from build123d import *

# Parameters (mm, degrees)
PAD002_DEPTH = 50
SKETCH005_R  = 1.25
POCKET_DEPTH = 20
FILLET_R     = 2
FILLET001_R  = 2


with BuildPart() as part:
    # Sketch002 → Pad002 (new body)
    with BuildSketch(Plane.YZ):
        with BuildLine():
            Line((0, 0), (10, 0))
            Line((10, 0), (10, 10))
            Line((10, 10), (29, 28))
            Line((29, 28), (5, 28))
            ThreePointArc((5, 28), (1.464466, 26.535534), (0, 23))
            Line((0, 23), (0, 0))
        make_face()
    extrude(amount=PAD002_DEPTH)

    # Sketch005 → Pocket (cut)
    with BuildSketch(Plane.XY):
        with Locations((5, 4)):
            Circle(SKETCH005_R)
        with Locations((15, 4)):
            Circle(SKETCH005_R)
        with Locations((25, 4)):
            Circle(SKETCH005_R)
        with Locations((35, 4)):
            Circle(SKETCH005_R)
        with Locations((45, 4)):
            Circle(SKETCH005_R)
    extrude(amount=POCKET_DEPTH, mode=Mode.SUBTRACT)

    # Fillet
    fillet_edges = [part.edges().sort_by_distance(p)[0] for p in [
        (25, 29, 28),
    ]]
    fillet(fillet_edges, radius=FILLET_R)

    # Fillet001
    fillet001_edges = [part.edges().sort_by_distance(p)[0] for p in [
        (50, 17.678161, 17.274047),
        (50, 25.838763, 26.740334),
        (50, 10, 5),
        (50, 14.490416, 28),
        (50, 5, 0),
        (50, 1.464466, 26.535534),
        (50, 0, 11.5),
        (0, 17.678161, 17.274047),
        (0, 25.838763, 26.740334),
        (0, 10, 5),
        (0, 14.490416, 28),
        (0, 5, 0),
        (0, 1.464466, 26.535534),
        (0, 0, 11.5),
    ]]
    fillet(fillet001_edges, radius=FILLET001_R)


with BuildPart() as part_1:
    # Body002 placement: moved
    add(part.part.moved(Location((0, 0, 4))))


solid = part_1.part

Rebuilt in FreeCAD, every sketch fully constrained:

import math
import FreeCAD as App
import Part
import Sketcher

V = App.Vector
Q = App.Units.Quantity


def edges_at(feature, points):
    """Names of the edges that pass closest to the given points."""
    edges = feature.Shape.Edges
    near = lambda p: min(range(len(edges)), key=lambda i: edges[i].distToShape(Part.Vertex(*p))[0])
    return sorted({f"Edge{near(p) + 1}" for p in points})

doc = App.newDocument("Part")
body = doc.addObject("PartDesign::Body", "Body")

sketch1 = body.newObject("Sketcher::SketchObject", "Sketch")
sketch1.AttachmentSupport = (doc.getObject("YZ_Plane"), [""])
sketch1.MapMode = "FlatFace"
sketch1.addGeometry(Part.LineSegment(V(0, 0, 0), V(10, 0, 0)), False)
sketch1.addGeometry(Part.LineSegment(V(10, 0, 0), V(10, 10, 0)), False)
sketch1.addGeometry(Part.LineSegment(V(10, 10, 0), V(29, 28, 0)), False)
sketch1.addGeometry(Part.LineSegment(V(29, 28, 0), V(5, 28, 0)), False)
sketch1.addGeometry(Part.ArcOfCircle(Part.Circle(V(5, 23, 0), V(0, 0, 1), 5), math.radians(89.999996), math.radians(180.000004)), False)
sketch1.addGeometry(Part.LineSegment(V(0, 23, 0), V(0, 0, 0)), False)
sketch1.addConstraint(Sketcher.Constraint("Coincident", 0, 2, 1, 1))
sketch1.addConstraint(Sketcher.Constraint("Coincident", 1, 2, 2, 1))
sketch1.addConstraint(Sketcher.Constraint("Coincident", 2, 2, 3, 1))
sketch1.addConstraint(Sketcher.Constraint("Tangent", 3, 2, 4, 1))
sketch1.addConstraint(Sketcher.Constraint("Tangent", 4, 2, 5, 1))
sketch1.addConstraint(Sketcher.Constraint("Coincident", 5, 2, 0, 1))
sketch1.addConstraint(Sketcher.Constraint("Horizontal", 0))
sketch1.addConstraint(Sketcher.Constraint("Vertical", 1))
sketch1.addConstraint(Sketcher.Constraint("Horizontal", 3))
sketch1.addConstraint(Sketcher.Constraint("Vertical", 5))
sketch1.addConstraint(Sketcher.Constraint("Coincident", 5, 2, -1, 1))
sketch1.addConstraint(Sketcher.Constraint("Equal", 0, 1))
sketch1.addConstraint(Sketcher.Constraint("Radius", 4, Q("5 mm")))
sketch1.addConstraint(Sketcher.Constraint("DistanceX", 0, 1, 0, 2, Q("10 mm")))
sketch1.addConstraint(Sketcher.Constraint("DistanceX", 3, 2, 3, 1, Q("24 mm")))
sketch1.addConstraint(Sketcher.Constraint("DistanceY", 5, 2, 5, 1, Q("23 mm")))
pad1 = body.newObject("PartDesign::Pad", "Pad")
pad1.Profile = sketch1
pad1.Length = 50

sketch2 = body.newObject("Sketcher::SketchObject", "Sketch001")
sketch2.AttachmentSupport = (doc.getObject("XY_Plane"), [""])
sketch2.MapMode = "FlatFace"
sketch2.addGeometry(Part.Circle(V(5, 4, 0), V(0, 0, 1), 1.25), False)
sketch2.addGeometry(Part.Circle(V(15, 4, 0), V(0, 0, 1), 1.25), False)
sketch2.addGeometry(Part.Circle(V(25, 4, 0), V(0, 0, 1), 1.25), False)
sketch2.addGeometry(Part.Circle(V(35, 4, 0), V(0, 0, 1), 1.25), False)
sketch2.addGeometry(Part.Circle(V(45, 4, 0), V(0, 0, 1), 1.25), False)
sketch2.addConstraint(Sketcher.Constraint("Equal", 0, 1))
sketch2.addConstraint(Sketcher.Constraint("Equal", 1, 2))
sketch2.addConstraint(Sketcher.Constraint("Equal", 2, 3))
sketch2.addConstraint(Sketcher.Constraint("Equal", 3, 4))
sketch2.addConstraint(Sketcher.Constraint("Horizontal", 0, 3, 1, 3))
sketch2.addConstraint(Sketcher.Constraint("Horizontal", 1, 3, 2, 3))
sketch2.addConstraint(Sketcher.Constraint("Horizontal", 2, 3, 3, 3))
sketch2.addConstraint(Sketcher.Constraint("Horizontal", 3, 3, 4, 3))
sketch2.addConstraint(Sketcher.Constraint("Diameter", 0, Q("2.5 mm")))
sketch2.addConstraint(Sketcher.Constraint("DistanceX", -1, 1, 0, 3, Q("5 mm")))
sketch2.addConstraint(Sketcher.Constraint("DistanceY", -1, 1, 0, 3, Q("4 mm")))
sketch2.addConstraint(Sketcher.Constraint("DistanceX", -1, 1, 1, 3, Q("15 mm")))
sketch2.addConstraint(Sketcher.Constraint("DistanceX", -1, 1, 2, 3, Q("25 mm")))
sketch2.addConstraint(Sketcher.Constraint("DistanceX", -1, 1, 3, 3, Q("35 mm")))
sketch2.addConstraint(Sketcher.Constraint("DistanceX", -1, 1, 4, 3, Q("45 mm")))
pocket1 = body.newObject("PartDesign::Pocket", "Pocket")
pocket1.Profile = sketch2
pocket1.Length = 20
pocket1.Reversed = True
doc.recompute()

fillet = body.newObject("PartDesign::Fillet", "Fillet")
fillet.Base = (pocket1, edges_at(pocket1, [(25, 29, 28)]))
fillet.Radius = 2
doc.recompute()

fillet2 = body.newObject("PartDesign::Fillet", "Fillet001")
fillet2.Base = (fillet, edges_at(fillet, [
    (50, 17.678, 17.274),
    (50, 25.839, 26.74),
    (50, 10, 5),
    (50, 14.49, 28),
    (50, 5, 0),
    (50, 1.464, 26.536),
    (50, 0, 11.5),
    (0, 17.678, 17.274),
    (0, 25.839, 26.74),
    (0, 10, 5),
    (0, 14.49, 28),
    (0, 5, 0),
    (0, 1.464, 26.536),
    (0, 0, 11.5),
]))
fillet2.Radius = 2
body2 = doc.addObject("PartDesign::Body", "Body001")
doc.recompute()

body.Placement = App.Placement(V(0, 0, 4), App.Rotation(V(0, 0, 1), 0))
boolean = body2.newObject("PartDesign::Boolean", "Boolean")
boolean.Type = "Fuse"
boolean.addObjects([body])

doc.recompute()
